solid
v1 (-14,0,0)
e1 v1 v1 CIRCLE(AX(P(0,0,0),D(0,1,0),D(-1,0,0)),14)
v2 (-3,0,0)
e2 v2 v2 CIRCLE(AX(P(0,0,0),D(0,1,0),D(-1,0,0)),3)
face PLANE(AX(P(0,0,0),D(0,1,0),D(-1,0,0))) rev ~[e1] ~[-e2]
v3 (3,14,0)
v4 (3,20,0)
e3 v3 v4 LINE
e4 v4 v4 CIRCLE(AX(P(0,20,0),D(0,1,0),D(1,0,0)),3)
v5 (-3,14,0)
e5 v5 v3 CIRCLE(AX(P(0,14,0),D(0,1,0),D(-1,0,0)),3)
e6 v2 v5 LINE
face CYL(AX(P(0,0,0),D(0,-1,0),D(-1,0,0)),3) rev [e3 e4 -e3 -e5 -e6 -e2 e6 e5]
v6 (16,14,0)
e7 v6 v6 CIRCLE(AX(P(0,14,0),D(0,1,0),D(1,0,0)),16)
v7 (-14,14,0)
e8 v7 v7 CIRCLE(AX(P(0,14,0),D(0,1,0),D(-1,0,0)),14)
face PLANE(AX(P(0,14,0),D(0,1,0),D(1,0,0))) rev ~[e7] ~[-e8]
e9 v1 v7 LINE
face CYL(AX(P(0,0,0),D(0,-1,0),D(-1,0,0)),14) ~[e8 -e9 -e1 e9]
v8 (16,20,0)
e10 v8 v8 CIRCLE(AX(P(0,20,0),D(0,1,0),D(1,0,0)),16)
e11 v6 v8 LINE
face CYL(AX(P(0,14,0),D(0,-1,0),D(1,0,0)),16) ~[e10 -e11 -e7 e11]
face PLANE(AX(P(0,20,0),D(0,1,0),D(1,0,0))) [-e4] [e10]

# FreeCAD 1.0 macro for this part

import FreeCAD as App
import Part
import Sketcher
from FreeCAD import Vector
Q = App.Units.Quantity

doc = App.newDocument("Part")
body = doc.addObject("PartDesign::Body", "Body")

# Sketch on XZ plane
sketch1 = body.newObject("Sketcher::SketchObject", "Sketch")
sketch1.AttachmentSupport = (doc.getObject("XZ_Plane"), [""])
sketch1.MapMode = "FlatFace"
sketch1.addGeometry(Part.Circle(Vector(0, 0, 0), Vector(0, 0, 1), 14), False)
sketch1.addGeometry(Part.Circle(Vector(0, 0, 0), Vector(0, 0, 1), 3), False)
sketch1.addConstraint(Sketcher.Constraint("Coincident", 0, 3, -1, 1))
sketch1.addConstraint(Sketcher.Constraint("Coincident", 1, 3, -1, 1))
sketch1.addConstraint(Sketcher.Constraint("Diameter", 0, Q("28 mm")))
sketch1.addConstraint(Sketcher.Constraint("Diameter", 1, Q("6 mm")))
pad1 = body.newObject("PartDesign::Pad", "Pad")
pad1.Profile = sketch1
pad1.Length = 14
pad1.Reversed = True

# Sketch on XZ plane
sketch2 = body.newObject("Sketcher::SketchObject", "Sketch001")
sketch2.AttachmentSupport = (doc.getObject("XZ_Plane"), [""])
sketch2.MapMode = "FlatFace"
sketch2.AttachmentOffset = App.Placement(Vector(0, 0, -14), App.Rotation())
sketch2.addGeometry(Part.Circle(Vector(0, 0, 0), Vector(0, 0, 1), 16), False)
sketch2.addGeometry(Part.Circle(Vector(0, 0, 0), Vector(0, 0, 1), 3), False)
sketch2.addConstraint(Sketcher.Constraint("Coincident", 0, 3, -1, 1))
sketch2.addConstraint(Sketcher.Constraint("Coincident", 1, 3, -1, 1))
sketch2.addConstraint(Sketcher.Constraint("Diameter", 0, Q("32 mm")))
sketch2.addConstraint(Sketcher.Constraint("Diameter", 1, Q("6 mm")))
pad2 = body.newObject("PartDesign::Pad", "Pad001")
pad2.Profile = sketch2
pad2.Length = 6
pad2.Reversed = True

doc.recompute()
